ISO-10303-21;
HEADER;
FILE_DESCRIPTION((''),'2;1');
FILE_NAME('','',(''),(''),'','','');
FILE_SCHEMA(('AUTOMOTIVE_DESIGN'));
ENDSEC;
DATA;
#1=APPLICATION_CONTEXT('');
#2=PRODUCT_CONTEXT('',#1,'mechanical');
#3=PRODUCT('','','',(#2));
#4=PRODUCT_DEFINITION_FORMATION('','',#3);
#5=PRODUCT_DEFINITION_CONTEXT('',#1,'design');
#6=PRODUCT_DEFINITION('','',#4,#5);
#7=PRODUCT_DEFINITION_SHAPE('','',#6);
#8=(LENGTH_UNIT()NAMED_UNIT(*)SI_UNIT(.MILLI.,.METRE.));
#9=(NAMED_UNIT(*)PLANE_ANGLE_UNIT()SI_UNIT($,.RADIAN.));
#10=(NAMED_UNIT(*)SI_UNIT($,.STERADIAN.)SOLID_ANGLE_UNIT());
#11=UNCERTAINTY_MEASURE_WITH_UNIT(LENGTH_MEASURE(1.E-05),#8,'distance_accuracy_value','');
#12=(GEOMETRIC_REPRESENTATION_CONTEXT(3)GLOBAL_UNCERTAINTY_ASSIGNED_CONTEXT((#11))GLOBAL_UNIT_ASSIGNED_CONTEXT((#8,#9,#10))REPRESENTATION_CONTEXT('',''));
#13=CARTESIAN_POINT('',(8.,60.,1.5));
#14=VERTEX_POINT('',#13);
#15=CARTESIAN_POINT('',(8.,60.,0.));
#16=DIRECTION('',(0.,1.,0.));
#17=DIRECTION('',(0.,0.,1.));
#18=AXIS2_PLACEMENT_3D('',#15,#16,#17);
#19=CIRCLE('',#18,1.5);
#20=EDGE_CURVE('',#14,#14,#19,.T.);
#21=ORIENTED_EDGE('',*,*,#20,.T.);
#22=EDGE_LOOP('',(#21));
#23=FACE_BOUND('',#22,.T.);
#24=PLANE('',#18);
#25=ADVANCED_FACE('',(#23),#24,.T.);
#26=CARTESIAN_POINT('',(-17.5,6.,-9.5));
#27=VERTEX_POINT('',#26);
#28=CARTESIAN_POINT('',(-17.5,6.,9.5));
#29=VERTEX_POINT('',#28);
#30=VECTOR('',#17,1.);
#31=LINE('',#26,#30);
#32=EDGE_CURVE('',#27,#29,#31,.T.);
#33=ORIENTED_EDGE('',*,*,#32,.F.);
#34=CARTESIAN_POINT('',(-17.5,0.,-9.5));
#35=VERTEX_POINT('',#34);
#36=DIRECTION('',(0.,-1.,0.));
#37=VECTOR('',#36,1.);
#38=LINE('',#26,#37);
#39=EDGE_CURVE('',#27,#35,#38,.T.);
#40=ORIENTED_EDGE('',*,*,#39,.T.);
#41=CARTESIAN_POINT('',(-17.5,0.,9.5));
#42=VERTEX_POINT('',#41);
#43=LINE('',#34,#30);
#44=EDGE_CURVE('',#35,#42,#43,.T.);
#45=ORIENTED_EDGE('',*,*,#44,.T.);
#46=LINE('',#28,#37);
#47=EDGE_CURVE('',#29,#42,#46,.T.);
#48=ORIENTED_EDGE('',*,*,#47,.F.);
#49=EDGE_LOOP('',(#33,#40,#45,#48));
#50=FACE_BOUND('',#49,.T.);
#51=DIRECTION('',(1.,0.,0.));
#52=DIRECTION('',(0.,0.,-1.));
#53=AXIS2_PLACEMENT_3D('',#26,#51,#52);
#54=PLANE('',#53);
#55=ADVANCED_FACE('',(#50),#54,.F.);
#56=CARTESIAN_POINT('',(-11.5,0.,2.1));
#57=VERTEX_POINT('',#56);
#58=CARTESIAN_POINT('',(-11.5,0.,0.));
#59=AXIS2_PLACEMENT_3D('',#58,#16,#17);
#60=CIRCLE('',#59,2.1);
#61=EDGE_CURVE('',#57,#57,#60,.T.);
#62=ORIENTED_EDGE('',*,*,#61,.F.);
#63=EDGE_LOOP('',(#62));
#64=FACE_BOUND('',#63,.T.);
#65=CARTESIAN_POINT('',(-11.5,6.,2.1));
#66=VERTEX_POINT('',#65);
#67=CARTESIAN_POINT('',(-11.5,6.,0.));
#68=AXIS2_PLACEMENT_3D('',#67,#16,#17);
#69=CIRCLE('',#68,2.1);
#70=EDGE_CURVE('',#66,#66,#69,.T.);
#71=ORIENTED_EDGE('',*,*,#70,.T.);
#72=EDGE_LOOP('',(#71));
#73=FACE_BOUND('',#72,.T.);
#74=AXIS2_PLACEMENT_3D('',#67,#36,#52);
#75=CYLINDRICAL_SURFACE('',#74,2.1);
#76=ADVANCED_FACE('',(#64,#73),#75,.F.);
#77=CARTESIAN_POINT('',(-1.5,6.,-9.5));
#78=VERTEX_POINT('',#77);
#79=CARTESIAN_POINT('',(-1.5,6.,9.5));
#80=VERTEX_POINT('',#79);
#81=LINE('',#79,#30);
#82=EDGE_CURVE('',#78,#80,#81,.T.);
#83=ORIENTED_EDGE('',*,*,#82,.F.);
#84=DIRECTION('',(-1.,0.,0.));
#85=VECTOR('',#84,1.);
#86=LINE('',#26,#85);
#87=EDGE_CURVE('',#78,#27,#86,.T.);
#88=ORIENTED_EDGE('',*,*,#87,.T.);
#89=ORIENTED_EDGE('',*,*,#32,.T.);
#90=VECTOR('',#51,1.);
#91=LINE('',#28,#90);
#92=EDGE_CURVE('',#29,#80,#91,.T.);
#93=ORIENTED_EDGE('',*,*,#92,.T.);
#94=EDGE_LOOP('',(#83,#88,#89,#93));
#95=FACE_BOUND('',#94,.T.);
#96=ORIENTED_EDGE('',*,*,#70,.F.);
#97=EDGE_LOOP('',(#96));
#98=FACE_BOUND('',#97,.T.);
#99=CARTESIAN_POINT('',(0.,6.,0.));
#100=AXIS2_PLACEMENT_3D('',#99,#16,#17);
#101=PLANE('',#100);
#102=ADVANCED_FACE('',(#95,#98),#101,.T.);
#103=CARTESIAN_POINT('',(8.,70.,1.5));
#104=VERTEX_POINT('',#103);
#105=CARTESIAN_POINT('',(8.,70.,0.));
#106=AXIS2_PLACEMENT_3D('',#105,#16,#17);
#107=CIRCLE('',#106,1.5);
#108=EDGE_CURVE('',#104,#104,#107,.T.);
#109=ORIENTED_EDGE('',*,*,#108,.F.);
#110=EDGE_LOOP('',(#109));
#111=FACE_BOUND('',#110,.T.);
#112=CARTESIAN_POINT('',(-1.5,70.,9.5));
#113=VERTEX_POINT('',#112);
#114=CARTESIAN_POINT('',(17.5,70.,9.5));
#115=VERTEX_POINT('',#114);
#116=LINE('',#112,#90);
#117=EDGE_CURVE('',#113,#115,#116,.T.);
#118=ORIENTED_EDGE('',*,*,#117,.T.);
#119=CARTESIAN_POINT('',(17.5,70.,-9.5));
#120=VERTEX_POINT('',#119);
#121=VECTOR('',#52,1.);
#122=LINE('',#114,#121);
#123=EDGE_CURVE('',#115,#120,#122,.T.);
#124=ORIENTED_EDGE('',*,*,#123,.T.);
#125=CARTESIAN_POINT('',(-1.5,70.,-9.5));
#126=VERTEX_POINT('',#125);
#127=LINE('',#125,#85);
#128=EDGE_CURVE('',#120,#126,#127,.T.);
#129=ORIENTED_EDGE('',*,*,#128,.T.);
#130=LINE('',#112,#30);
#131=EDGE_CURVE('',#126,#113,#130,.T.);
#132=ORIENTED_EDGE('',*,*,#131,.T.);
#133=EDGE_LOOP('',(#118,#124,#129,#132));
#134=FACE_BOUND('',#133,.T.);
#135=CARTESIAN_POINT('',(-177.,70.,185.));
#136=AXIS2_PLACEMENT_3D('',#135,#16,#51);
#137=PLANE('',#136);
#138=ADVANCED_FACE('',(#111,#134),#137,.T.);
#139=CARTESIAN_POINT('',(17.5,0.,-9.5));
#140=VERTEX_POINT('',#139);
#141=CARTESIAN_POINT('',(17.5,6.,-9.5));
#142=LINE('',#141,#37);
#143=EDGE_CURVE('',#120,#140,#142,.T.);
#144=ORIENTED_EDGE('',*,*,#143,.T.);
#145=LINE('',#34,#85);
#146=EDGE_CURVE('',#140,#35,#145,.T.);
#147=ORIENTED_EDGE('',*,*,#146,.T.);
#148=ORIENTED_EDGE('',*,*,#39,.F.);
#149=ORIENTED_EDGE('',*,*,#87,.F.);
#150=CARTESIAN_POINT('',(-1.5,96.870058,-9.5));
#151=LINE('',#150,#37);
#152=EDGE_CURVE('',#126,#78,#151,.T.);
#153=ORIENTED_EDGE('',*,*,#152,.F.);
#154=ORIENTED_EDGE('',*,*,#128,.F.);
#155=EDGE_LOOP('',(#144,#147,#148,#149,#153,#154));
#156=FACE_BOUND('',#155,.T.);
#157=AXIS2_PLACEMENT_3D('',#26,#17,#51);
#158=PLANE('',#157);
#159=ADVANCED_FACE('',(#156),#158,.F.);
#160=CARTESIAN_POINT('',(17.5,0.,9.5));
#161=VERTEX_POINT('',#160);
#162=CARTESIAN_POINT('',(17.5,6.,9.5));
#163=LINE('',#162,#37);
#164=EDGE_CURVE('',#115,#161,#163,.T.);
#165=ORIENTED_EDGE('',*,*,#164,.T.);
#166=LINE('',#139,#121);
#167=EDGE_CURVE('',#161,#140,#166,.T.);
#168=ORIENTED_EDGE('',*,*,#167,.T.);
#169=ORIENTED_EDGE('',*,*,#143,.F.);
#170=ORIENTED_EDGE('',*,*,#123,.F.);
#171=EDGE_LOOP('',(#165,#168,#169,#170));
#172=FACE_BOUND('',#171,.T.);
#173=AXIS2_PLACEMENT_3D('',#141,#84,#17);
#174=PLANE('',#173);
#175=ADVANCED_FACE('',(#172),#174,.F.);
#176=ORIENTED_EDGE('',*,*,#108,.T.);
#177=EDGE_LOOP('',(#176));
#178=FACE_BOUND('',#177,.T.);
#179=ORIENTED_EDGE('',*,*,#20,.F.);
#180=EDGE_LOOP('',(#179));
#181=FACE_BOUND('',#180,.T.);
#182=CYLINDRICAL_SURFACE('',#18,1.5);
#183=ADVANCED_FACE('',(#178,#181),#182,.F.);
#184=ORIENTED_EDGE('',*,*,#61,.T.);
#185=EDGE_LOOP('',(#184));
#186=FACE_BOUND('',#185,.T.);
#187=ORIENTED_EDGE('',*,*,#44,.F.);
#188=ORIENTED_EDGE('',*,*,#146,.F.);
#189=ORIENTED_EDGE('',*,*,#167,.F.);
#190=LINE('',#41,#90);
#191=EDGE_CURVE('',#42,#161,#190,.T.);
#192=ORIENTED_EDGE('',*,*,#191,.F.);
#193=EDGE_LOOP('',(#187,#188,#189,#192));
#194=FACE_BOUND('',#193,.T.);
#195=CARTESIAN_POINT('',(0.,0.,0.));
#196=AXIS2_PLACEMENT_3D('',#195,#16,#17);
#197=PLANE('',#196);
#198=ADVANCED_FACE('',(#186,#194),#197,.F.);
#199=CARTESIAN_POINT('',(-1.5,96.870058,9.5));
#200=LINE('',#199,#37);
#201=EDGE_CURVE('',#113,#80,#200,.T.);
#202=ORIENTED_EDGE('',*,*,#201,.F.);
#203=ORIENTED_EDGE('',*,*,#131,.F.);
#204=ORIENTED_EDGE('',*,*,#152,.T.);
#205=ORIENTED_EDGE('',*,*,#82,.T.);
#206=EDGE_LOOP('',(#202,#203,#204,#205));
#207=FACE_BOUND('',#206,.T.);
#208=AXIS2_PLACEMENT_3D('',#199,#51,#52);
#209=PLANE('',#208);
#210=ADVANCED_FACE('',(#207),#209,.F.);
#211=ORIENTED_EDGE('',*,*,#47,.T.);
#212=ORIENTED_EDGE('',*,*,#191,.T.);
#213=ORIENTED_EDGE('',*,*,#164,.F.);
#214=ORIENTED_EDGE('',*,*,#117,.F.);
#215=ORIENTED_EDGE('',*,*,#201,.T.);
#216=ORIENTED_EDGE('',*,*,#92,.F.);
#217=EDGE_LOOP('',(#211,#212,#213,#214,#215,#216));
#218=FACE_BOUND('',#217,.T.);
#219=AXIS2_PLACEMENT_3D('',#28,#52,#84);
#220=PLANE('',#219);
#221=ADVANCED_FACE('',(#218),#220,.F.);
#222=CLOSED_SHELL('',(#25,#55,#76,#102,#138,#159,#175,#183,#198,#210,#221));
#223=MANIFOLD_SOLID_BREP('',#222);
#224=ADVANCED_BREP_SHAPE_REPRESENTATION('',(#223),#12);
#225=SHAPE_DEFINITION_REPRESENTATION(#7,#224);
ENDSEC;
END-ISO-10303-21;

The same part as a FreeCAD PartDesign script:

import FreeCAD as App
import Part
import Sketcher

doc = App.newDocument("Part")
body = doc.addObject("PartDesign::Body", "Body")

sketch1 = body.newObject("Sketcher::SketchObject", "Sketch")
sketch1.AttachmentSupport = (doc.getObject("XZ_Plane"), [""])
sketch1.MapMode = "FlatFace"
sketch1.addGeometry(Part.LineSegment(App.Vector(-17.5, -9.5, 0), App.Vector(-17.5, 9.5, 0)), False)
sketch1.addGeometry(Part.LineSegment(App.Vector(-17.5, 9.5, 0), App.Vector(17.5, 9.5, 0)), False)
sketch1.addGeometry(Part.LineSegment(App.Vector(17.5, 9.5, 0), App.Vector(17.5, -9.5, 0)), False)
sketch1.addGeometry(Part.LineSegment(App.Vector(17.5, -9.5, 0), App.Vector(-17.5, -9.5, 0)), False)
sketch1.addGeometry(Part.Circle(App.Vector(-11.5, 0, 0), App.Vector(0, 0, 1), 2.1), False)
sketch1.addConstraint(Sketcher.Constraint("Coincident", 0, 2, 1, 1))
sketch1.addConstraint(Sketcher.Constraint("Coincident", 1, 2, 2, 1))
sketch1.addConstraint(Sketcher.Constraint("Coincident", 2, 2, 3, 1))
sketch1.addConstraint(Sketcher.Constraint("Coincident", 3, 2, 0, 1))
sketch1.addConstraint(Sketcher.Constraint("Vertical", 0))
sketch1.addConstraint(Sketcher.Constraint("Horizontal", 1))
sketch1.addConstraint(Sketcher.Constraint("Vertical", 2))
sketch1.addConstraint(Sketcher.Constraint("Horizontal", 3))
sketch1.addConstraint(Sketcher.Constraint("Symmetric", 0, 2, 2, 2, -1, 1))
sketch1.addConstraint(Sketcher.Constraint("PointOnObject", 4, 3, -1))
sketch1.addConstraint(Sketcher.Constraint("Diameter", 4, 4.2))
sketch1.addConstraint(Sketcher.Constraint("DistanceX", 1, 1, 1, 2, 35.0))
sketch1.addConstraint(Sketcher.Constraint("DistanceY", 0, 1, 0, 2, 19.0))
sketch1.addConstraint(Sketcher.Constraint("DistanceX", 0, 2, 4, 3, 6.0))
pad1 = body.newObject("PartDesign::Pad", "Pad")
pad1.Profile = sketch1
pad1.Length = 6
pad1.Reversed = True

sketch2 = body.newObject("Sketcher::SketchObject", "Sketch001")
sketch2.AttachmentSupport = (doc.getObject("XZ_Plane"), [""])
sketch2.MapMode = "FlatFace"
sketch2.AttachmentOffset = App.Placement(App.Vector(0, 0, -6), App.Rotation())
sketch2.addGeometry(Part.LineSegment(App.Vector(-2, -10, 0), App.Vector(-2, 10, 0)), False)
sketch2.addGeometry(Part.LineSegment(App.Vector(-2, 10, 0), App.Vector(18, 10, 0)), False)
sketch2.addGeometry(Part.LineSegment(App.Vector(18, 10, 0), App.Vector(18, -10, 0)), False)
sketch2.addGeometry(Part.LineSegment(App.Vector(18, -10, 0), App.Vector(-2, -10, 0)), False)
sketch2.addConstraint(Sketcher.Constraint("Coincident", 0, 2, 1, 1))
sketch2.addConstraint(Sketcher.Constraint("Coincident", 1, 2, 2, 1))
sketch2.addConstraint(Sketcher.Constraint("Coincident", 2, 2, 3, 1))
sketch2.addConstraint(Sketcher.Constraint("Coincident", 3, 2, 0, 1))
sketch2.addConstraint(Sketcher.Constraint("Vertical", 0))
sketch2.addConstraint(Sketcher.Constraint("Horizontal", 1))
sketch2.addConstraint(Sketcher.Constraint("Vertical", 2))
sketch2.addConstraint(Sketcher.Constraint("Horizontal", 3))
sketch2.addConstraint(Sketcher.Constraint("Equal", 3, 0))
sketch2.addConstraint(Sketcher.Constraint("DistanceX", 1, 1, 1, 2, 19.0))
sketch2.addConstraint(Sketcher.Constraint("DistanceX", 0, 2, -1, 1, 1.5))
sketch2.addConstraint(Sketcher.Constraint("DistanceY", -1, 1, 0, 2, 9.5))
pad2 = body.newObject("PartDesign::Pad", "Pad001")
pad2.Profile = sketch2
pad2.Length = 64
pad2.Reversed = True

sketch3 = body.newObject("Sketcher::SketchObject", "Sketch002")
sketch3.AttachmentSupport = (doc.getObject("XZ_Plane"), [""])
sketch3.MapMode = "FlatFace"
sketch3.AttachmentOffset = App.Placement(App.Vector(0, 0, -70), App.Rotation())
sketch3.addGeometry(Part.Circle(App.Vector(8, 0, 0), App.Vector(0, 0, 1), 1.5), False)
sketch3.addConstraint(Sketcher.Constraint("PointOnObject", 0, 3, -1))
sketch3.addConstraint(Sketcher.Constraint("Diameter", 0, 3.0))
sketch3.addConstraint(Sketcher.Constraint("DistanceX", -1, 1, 0, 3, 8.0))
pocket1 = body.newObject("PartDesign::Pocket", "Pocket")
pocket1.Profile = sketch3
pocket1.Length = 10
pocket1.Reversed = True

doc.recompute()
